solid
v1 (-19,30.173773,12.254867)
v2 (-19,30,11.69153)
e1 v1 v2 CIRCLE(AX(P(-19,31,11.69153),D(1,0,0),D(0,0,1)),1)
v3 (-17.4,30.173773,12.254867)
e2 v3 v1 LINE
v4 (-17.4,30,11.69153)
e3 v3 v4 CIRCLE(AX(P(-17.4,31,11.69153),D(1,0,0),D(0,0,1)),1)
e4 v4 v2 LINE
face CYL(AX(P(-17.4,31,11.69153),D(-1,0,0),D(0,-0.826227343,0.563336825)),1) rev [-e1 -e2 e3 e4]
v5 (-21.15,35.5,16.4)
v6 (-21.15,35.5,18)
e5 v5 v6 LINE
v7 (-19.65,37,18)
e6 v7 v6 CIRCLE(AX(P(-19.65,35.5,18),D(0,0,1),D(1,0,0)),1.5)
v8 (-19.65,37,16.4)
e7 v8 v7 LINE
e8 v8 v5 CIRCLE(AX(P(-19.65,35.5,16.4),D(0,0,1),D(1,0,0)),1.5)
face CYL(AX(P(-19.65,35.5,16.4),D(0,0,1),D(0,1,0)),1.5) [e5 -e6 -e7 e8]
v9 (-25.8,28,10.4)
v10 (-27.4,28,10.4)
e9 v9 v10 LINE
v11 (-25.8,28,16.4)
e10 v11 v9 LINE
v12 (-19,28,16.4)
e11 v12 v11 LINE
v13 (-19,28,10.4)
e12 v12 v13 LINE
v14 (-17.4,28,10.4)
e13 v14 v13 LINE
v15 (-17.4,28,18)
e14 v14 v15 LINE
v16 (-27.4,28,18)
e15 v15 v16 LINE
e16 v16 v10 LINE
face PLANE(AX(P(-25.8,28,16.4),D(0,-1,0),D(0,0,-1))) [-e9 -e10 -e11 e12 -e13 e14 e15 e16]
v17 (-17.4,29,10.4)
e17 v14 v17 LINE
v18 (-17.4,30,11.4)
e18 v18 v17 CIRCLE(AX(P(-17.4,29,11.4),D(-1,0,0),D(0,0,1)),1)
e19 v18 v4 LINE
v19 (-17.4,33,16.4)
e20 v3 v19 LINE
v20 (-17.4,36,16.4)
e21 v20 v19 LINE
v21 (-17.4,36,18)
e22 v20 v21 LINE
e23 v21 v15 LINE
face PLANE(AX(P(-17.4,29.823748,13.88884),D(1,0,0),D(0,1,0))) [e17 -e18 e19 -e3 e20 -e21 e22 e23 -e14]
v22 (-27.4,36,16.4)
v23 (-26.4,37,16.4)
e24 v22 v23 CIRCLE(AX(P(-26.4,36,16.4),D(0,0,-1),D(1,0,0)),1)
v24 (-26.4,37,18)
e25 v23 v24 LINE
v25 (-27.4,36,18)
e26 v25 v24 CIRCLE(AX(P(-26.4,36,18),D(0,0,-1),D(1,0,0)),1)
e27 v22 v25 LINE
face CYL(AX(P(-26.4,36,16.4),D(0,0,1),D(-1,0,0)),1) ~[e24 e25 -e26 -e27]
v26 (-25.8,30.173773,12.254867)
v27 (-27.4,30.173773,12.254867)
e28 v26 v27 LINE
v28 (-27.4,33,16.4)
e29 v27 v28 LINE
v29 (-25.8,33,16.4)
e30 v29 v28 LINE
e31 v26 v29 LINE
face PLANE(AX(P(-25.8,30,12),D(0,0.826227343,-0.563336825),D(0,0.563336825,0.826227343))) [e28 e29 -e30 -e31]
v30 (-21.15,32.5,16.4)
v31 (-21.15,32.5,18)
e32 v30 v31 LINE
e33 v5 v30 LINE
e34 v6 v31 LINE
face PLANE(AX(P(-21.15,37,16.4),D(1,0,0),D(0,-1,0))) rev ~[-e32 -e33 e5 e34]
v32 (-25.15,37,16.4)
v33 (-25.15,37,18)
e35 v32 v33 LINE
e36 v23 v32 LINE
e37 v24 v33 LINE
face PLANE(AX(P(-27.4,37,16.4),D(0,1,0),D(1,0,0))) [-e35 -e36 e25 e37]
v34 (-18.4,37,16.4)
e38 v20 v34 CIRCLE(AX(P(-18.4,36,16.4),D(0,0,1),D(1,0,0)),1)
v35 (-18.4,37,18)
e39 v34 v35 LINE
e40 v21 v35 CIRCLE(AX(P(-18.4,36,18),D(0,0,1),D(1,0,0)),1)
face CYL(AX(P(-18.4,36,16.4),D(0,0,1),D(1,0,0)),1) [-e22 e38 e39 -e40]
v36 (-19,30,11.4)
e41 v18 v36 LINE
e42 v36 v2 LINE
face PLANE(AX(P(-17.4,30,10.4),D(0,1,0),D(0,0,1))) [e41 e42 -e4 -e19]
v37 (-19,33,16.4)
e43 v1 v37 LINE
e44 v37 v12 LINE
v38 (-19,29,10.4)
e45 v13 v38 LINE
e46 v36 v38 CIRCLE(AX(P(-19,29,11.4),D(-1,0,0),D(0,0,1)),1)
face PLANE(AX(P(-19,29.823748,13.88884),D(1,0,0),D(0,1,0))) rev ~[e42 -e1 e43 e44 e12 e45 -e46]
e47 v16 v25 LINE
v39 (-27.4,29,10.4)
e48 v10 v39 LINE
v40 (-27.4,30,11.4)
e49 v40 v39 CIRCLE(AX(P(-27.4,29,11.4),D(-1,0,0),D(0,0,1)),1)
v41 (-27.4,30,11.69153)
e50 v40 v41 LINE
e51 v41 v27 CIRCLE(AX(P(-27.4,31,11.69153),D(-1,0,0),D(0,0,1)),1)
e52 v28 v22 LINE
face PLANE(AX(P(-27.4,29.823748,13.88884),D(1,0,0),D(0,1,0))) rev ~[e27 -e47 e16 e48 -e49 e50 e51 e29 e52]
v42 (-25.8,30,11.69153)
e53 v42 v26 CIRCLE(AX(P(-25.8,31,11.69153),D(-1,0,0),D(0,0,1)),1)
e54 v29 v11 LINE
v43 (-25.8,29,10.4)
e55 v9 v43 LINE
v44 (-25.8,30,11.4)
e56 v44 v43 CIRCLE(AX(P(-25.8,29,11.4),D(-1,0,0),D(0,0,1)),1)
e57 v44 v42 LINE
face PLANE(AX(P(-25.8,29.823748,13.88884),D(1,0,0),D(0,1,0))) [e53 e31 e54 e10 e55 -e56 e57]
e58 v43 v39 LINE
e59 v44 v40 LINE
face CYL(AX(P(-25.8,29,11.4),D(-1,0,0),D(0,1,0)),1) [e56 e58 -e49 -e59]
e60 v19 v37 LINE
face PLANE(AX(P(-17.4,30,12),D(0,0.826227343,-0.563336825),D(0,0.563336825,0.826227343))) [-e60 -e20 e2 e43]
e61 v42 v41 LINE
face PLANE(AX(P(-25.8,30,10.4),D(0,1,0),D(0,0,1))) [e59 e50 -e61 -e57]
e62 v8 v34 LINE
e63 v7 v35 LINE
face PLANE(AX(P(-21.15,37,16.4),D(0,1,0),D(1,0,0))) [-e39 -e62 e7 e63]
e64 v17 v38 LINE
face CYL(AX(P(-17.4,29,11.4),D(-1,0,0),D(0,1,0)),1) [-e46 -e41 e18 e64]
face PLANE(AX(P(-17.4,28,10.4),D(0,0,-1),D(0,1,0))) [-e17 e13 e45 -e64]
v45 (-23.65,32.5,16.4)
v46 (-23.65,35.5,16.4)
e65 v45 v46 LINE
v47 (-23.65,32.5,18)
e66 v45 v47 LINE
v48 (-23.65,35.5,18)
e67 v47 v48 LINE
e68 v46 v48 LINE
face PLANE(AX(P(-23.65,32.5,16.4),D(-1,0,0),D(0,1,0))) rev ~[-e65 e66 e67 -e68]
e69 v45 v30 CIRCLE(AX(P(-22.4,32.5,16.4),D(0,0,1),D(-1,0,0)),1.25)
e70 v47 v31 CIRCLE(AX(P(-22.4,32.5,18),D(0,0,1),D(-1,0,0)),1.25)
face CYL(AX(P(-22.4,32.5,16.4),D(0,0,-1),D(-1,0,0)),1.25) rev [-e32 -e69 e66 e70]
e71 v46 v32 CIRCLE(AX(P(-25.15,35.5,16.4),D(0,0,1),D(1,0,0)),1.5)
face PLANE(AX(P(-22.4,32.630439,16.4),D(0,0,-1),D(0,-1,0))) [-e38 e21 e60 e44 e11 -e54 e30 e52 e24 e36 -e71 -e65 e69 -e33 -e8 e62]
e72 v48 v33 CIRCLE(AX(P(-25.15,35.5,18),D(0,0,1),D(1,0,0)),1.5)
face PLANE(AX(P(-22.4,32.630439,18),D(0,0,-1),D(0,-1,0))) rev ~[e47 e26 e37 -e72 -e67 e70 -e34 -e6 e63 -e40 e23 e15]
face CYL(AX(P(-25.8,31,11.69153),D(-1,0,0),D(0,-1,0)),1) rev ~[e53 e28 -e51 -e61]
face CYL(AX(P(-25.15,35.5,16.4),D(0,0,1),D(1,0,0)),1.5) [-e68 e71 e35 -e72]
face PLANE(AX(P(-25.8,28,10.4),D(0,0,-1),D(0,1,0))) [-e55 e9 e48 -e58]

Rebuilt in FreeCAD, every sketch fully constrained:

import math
import FreeCAD as App
import Part
import Sketcher
from FreeCAD import Vector
Q = App.Units.Quantity


def edges_at(feature, points):
    """Names of the edges that pass closest to the given points."""
    edges = feature.Shape.Edges
    near = lambda p: min(range(len(edges)), key=lambda i: edges[i].distToShape(Part.Vertex(*p))[0])
    return sorted({f"Edge{near(p) + 1}" for p in points})


def add_polygon(sketch, points):
    """Adds a closed chain of lines whose ends are joined by coincident constraints."""
    first, n = sketch.GeometryCount, len(points)
    for a, b in zip(points, points[1:] + points[:1]):
        sketch.addGeometry(Part.LineSegment(App.Vector(*a, 0), App.Vector(*b, 0)), False)
    for i in range(n):
        sketch.addConstraint(Sketcher.Constraint("Coincident", first + i, 2, first + (i + 1) % n, 1))

doc = App.newDocument("Part")
params = doc.addObject("Spreadsheet::Sheet", "Params")
for row, (alias, value) in enumerate([
    ("sketch1_width", "9 mm"),
    ("sketch1_height", "10 mm"),
    ("sketch1_radius", "1.25 mm"),
    ("pad1_length", "1.6 mm"),
    ("sketch2_width", "2 mm"),
    ("sketch2_width2", "5 mm"),
    ("sketch2_height", "6 mm"),
    ("sketch2_height2", "1.6 mm"),
    ("pad2_length", "1.6 mm"),
    ("linearpattern_pitch", "8.4 mm"),
    ("fillet_radius", "1 mm"),
    ("fillet2_radius", "1 mm"),
    ("fillet3_radius", "1 mm"),
    ("fillet4_radius", "1.5 mm"),
], start=1):
    params.set(f"A{row}", alias)
    params.set(f"B{row}", "=" + value)
    params.setAlias(f"B{row}", alias)

body = doc.addObject("PartDesign::Body", "Body")

# Sketch on XY plane
sketch1 = body.newObject("Sketcher::SketchObject", "Sketch")
sketch1.AttachmentSupport = (doc.getObject("XY_Plane"), [""])
sketch1.MapMode = "FlatFace"
sketch1.addGeometry(Part.LineSegment(Vector(4.5, 5, 0), Vector(-4.5, 5, 0)), False)
sketch1.addGeometry(Part.LineSegment(Vector(-4.5, 5, 0), Vector(-4.5, -5, 0)), False)
sketch1.addGeometry(Part.LineSegment(Vector(-4.5, -5, 0), Vector(4.5, -5, 0)), False)
sketch1.addGeometry(Part.LineSegment(Vector(4.5, -5, 0), Vector(4.5, -1.2, 0)), False)
sketch1.addGeometry(Part.LineSegment(Vector(4.5, -1.2, 0), Vector(0, -1.2, 0)), False)
sketch1.addGeometry(Part.ArcOfCircle(Part.Circle(Vector(0, 0, 0), Vector(0, 0, 1), 1.2), math.radians(90), math.radians(270)), False)
sketch1.addGeometry(Part.LineSegment(Vector(0, 1.2, 0), Vector(4.5, 1.2, 0)), False)
sketch1.addGeometry(Part.LineSegment(Vector(4.5, 1.2, 0), Vector(4.5, 5, 0)), False)
sketch1.addConstraint(Sketcher.Constraint("Coincident", 0, 2, 1, 1))
sketch1.addConstraint(Sketcher.Constraint("Coincident", 1, 2, 2, 1))
sketch1.addConstraint(Sketcher.Constraint("Coincident", 2, 2, 3, 1))
sketch1.addConstraint(Sketcher.Constraint("Coincident", 3, 2, 4, 1))
sketch1.addConstraint(Sketcher.Constraint("Tangent", 4, 2, 5, 2))
sketch1.addConstraint(Sketcher.Constraint("Tangent", 5, 1, 6, 1))
sketch1.addConstraint(Sketcher.Constraint("Coincident", 6, 2, 7, 1))
sketch1.addConstraint(Sketcher.Constraint("Coincident", 7, 2, 0, 1))
sketch1.addConstraint(Sketcher.Constraint("Horizontal", 0))
sketch1.addConstraint(Sketcher.Constraint("Vertical", 1))
sketch1.addConstraint(Sketcher.Constraint("Horizontal", 2))
sketch1.addConstraint(Sketcher.Constraint("Vertical", 3))
sketch1.addConstraint(Sketcher.Constraint("Horizontal", 4))
sketch1.addConstraint(Sketcher.Constraint("Horizontal", 6))
sketch1.addConstraint(Sketcher.Constraint("Vertical", 7))
sketch1.addConstraint(Sketcher.Constraint("Coincident", 5, 3, -1, 1))
sketch1.addConstraint(Sketcher.Constraint("Symmetric", 0, 2, 2, 2, -1, 1))
sketch1.addConstraint(Sketcher.Constraint("Vertical", 3, 2, 6, 2))
sketch1.addConstraint(Sketcher.Constraint("DistanceX", 0, 2, 0, 1, Q("9 mm")))
sketch1.addConstraint(Sketcher.Constraint("DistanceY", 1, 2, 1, 1, Q("10 mm")))
sketch1.addConstraint(Sketcher.Constraint("Radius", 5, Q("1.25 mm")))
sketch1.setExpression("Constraints[18]", "Params.sketch1_width")
sketch1.setExpression("Constraints[19]", "Params.sketch1_height")
sketch1.setExpression("Constraints[20]", "Params.sketch1_radius")
pad1 = body.newObject("PartDesign::Pad", "Pad")
pad1.Profile = sketch1
pad1.setExpression("Length", "Params.pad1_length")

# Sketch on XZ plane
sketch2 = body.newObject("Sketcher::SketchObject", "Sketch001")
sketch2.AttachmentSupport = (doc.getObject("XZ_Plane"), [""])
sketch2.MapMode = "FlatFace"
sketch2.AttachmentOffset = App.Placement(Vector(0, 0, 5), App.Rotation())
add_polygon(sketch2, [(-4.5, 0), (-4.5, -6), (-2.5, -6), (-2.5, -4.4), (0.5, 0)])  # lines 0-4
sketch2.addConstraint(Sketcher.Constraint("Vertical", 0))
sketch2.addConstraint(Sketcher.Constraint("Horizontal", 1))
sketch2.addConstraint(Sketcher.Constraint("Vertical", 2))
sketch2.addConstraint(Sketcher.Constraint("Horizontal", 4))
sketch2.addConstraint(Sketcher.Constraint("PointOnObject", 3, 2, -1))
sketch2.addConstraint(Sketcher.Constraint("DistanceX", 1, 1, 1, 2, Q("2 mm")))
sketch2.addConstraint(Sketcher.Constraint("DistanceX", 4, 2, 4, 1, Q("5 mm")))
sketch2.addConstraint(Sketcher.Constraint("DistanceY", 0, 2, 0, 1, Q("6 mm")))
sketch2.addConstraint(Sketcher.Constraint("DistanceY", 2, 1, 2, 2, Q("1.6 mm")))
sketch2.addConstraint(Sketcher.Constraint("DistanceX", 0, 2, -1, 1, Q("4.5 mm")))
sketch2.setExpression("Constraints[10]", "Params.sketch2_width")
sketch2.setExpression("Constraints[11]", "Params.sketch2_width2")
sketch2.setExpression("Constraints[12]", "Params.sketch2_height")
sketch2.setExpression("Constraints[13]", "Params.sketch2_height2")
pad2 = body.newObject("PartDesign::Pad", "Pad001")
pad2.Profile = sketch2
pad2.setExpression("Length", "Params.pad2_length")
pad2.Reversed = True
doc.recompute()

linearpattern = body.newObject("PartDesign::LinearPattern", "LinearPattern")
linearpattern.Originals = [pad2]
linearpattern.Direction = (doc.getObject("Y_Axis"), [""])
linearpattern.Mode = "offset"
linearpattern.setExpression("Offset", "Params.linearpattern_pitch")
linearpattern.Occurrences = 2
body.Tip = linearpattern
doc.recompute()

fillet = body.newObject("PartDesign::Fillet", "Fillet")
fillet.Base = (linearpattern, edges_at(linearpattern, [(-2.5, -4.2, -6), (-2.5, 4.2, -6)]))
fillet.setExpression("Radius", "Params.fillet_radius")
doc.recompute()

fillet2 = body.newObject("PartDesign::Fillet", "Fillet001")
fillet2.Base = (fillet, edges_at(fillet, [(-2.5, -4.2, -4.4), (-2.5, 4.2, -4.4)]))
fillet2.setExpression("Radius", "Params.fillet2_radius")
doc.recompute()

fillet3 = body.newObject("PartDesign::Fillet", "Fillet002")
fillet3.Base = (fillet2, edges_at(fillet2, [(4.5, -5, 0.8), (4.5, 5, 0.8)]))
fillet3.setExpression("Radius", "Params.fillet3_radius")
doc.recompute()

fillet4 = body.newObject("PartDesign::Fillet", "Fillet003")
fillet4.Base = (fillet3, edges_at(fillet3, [(4.5, -1.25, 0.8), (4.5, 1.25, 0.8)]))
fillet4.setExpression("Radius", "Params.fillet4_radius")
body2 = doc.addObject("PartDesign::Body", "Body001")
doc.recompute()

body.Placement = App.Placement(Vector(-22.4, 32.5, 16.4), App.Rotation(Vector(0, 0, 1), 90))
boolean = body2.newObject("PartDesign::Boolean", "Boolean")
boolean.Type = "Fuse"
boolean.addObjects([body])

doc.recompute()
